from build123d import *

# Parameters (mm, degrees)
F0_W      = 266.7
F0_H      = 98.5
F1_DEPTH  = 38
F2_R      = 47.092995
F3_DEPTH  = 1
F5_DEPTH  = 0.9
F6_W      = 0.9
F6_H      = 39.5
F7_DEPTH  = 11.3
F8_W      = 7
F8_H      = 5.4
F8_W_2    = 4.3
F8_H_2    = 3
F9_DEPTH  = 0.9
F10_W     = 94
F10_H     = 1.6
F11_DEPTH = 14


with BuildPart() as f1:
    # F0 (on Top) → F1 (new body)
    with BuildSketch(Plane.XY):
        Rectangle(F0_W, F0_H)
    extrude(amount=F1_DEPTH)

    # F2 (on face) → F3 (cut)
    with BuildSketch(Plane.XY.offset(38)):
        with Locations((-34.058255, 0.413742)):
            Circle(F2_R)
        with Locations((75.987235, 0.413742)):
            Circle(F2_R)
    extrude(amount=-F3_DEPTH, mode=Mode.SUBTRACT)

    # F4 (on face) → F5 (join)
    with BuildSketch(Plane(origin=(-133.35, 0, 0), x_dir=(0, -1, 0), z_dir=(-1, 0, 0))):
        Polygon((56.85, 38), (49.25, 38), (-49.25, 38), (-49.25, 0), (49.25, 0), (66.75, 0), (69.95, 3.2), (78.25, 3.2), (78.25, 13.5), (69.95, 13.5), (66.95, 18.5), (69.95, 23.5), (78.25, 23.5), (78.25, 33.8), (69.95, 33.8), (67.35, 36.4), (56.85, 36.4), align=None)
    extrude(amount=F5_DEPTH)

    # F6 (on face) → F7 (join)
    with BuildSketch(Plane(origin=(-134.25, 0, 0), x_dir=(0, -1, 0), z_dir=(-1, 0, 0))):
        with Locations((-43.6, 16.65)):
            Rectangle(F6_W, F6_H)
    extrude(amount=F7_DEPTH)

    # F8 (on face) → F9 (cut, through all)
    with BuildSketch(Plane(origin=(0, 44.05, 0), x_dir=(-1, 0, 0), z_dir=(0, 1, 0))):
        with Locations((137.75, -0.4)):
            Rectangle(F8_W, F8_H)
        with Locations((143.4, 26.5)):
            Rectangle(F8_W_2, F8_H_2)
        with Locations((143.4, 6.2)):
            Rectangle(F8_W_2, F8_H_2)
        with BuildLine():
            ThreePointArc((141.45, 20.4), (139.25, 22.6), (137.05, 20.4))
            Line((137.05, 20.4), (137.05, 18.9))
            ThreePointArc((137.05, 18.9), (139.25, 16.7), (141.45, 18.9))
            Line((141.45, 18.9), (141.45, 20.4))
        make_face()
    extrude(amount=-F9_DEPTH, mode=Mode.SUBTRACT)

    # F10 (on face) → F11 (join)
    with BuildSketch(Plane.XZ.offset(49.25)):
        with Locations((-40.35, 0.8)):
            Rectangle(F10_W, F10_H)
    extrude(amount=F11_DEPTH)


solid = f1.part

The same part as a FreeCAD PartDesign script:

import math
import FreeCAD as App
import Part
import Sketcher
from FreeCAD import Vector
Q = App.Units.Quantity

doc = App.newDocument("Part")
params = doc.addObject("Spreadsheet::Sheet", "Params")
for row, (alias, value) in enumerate([
    ("sketch1_width", "266.7 mm"),
    ("sketch1_height", "98.5 mm"),
    ("pad1_length", "38 mm"),
    ("pocket1_length", "1 mm"),
    ("sketch3_width", "116 mm"),
    ("sketch3_height", "38 mm"),
    ("sketch3_width2", "106.1 mm"),
    ("sketch3_width3", "8.3 mm"),
    ("sketch3_width4", "10.5 mm"),
    ("pad2_length", "0.9 mm"),
    ("sketch4_width", "0.9 mm"),
    ("sketch4_height", "39.5 mm"),
    ("pad3_length", "11.3 mm"),
    ("sketch5_radius", "2.2 mm"),
    ("sketch5_width", "7 mm"),
    ("sketch5_height", "3 mm"),
    ("sketch5_width2", "4.3 mm"),
    ("sketch5_height2", "5.4 mm"),
    ("sketch6_width", "94 mm"),
    ("sketch6_height", "1.6 mm"),
    ("pad4_length", "14 mm"),
], start=1):
    params.set(f"A{row}", alias)
    params.set(f"B{row}", "=" + value)
    params.setAlias(f"B{row}", alias)

body = doc.addObject("PartDesign::Body", "Body")

sketch1 = body.newObject("Sketcher::SketchObject", "Sketch")
sketch1.AttachmentSupport = (doc.getObject("XY_Plane"), [""])
sketch1.MapMode = "FlatFace"
sketch1.addGeometry(Part.LineSegment(Vector(-133.35, 49.25, 0), Vector(-133.35, -49.25, 0)), False)
sketch1.addGeometry(Part.LineSegment(Vector(-133.35, -49.25, 0), Vector(133.35, -49.25, 0)), False)
sketch1.addGeometry(Part.LineSegment(Vector(133.35, -49.25, 0), Vector(133.35, 49.25, 0)), False)
sketch1.addGeometry(Part.LineSegment(Vector(133.35, 49.25, 0), Vector(-133.35, 49.25, 0)), False)
sketch1.addConstraint(Sketcher.Constraint("Coincident", 0, 2, 1, 1))
sketch1.addConstraint(Sketcher.Constraint("Coincident", 1, 2, 2, 1))
sketch1.addConstraint(Sketcher.Constraint("Coincident", 2, 2, 3, 1))
sketch1.addConstraint(Sketcher.Constraint("Coincident", 3, 2, 0, 1))
sketch1.addConstraint(Sketcher.Constraint("Vertical", 0))
sketch1.addConstraint(Sketcher.Constraint("Horizontal", 1))
sketch1.addConstraint(Sketcher.Constraint("Vertical", 2))
sketch1.addConstraint(Sketcher.Constraint("Horizontal", 3))
sketch1.addConstraint(Sketcher.Constraint("Symmetric", 0, 2, 2, 2, -1, 1))
sketch1.addConstraint(Sketcher.Constraint("DistanceX", 1, 1, 1, 2, 266.7))
sketch1.addConstraint(Sketcher.Constraint("DistanceY", 0, 2, 0, 1, 98.5))
sketch1.setExpression("Constraints[9]", "Params.sketch1_width")
sketch1.setExpression("Constraints[10]", "Params.sketch1_height")
pad1 = body.newObject("PartDesign::Pad", "Pad")
pad1.Profile = sketch1
pad1.setExpression("Length", "Params.pad1_length")

sketch2 = body.newObject("Sketcher::SketchObject", "Sketch001")
sketch2.AttachmentSupport = (doc.getObject("XY_Plane"), [""])
sketch2.MapMode = "FlatFace"
sketch2.AttachmentOffset = App.Placement(Vector(0, 0, 38), App.Rotation())
sketch2.addGeometry(Part.Circle(Vector(-34.058255, 0.413742, 0), Vector(0, 0, 1), 47.092995), False)
sketch2.addGeometry(Part.Circle(Vector(75.987235, 0.413742, 0), Vector(0, 0, 1), 47.092995), False)
sketch2.addConstraint(Sketcher.Constraint("Equal", 0, 1))
sketch2.addConstraint(Sketcher.Constraint("Horizontal", 0, 3, 1, 3))
sketch2.addConstraint(Sketcher.Constraint("Diameter", 0, 94.18599))
sketch2.addConstraint(Sketcher.Constraint("DistanceX", 0, 3, 1, 3, 110.04549))
sketch2.addConstraint(Sketcher.Constraint("DistanceX", 0, 3, -1, 1, 34.058255))
sketch2.addConstraint(Sketcher.Constraint("DistanceY", -1, 1, 0, 3, 0.413742))
pocket1 = body.newObject("PartDesign::Pocket", "Pocket")
pocket1.Profile = sketch2
pocket1.setExpression("Length", "Params.pocket1_length")

sketch3 = body.newObject("Sketcher::SketchObject", "Sketch002")
sketch3.AttachmentSupport = (doc.getObject("YZ_Plane"), [""])
sketch3.MapMode = "FlatFace"
sketch3.AttachmentOffset = App.Placement(Vector(0, 0, -133.35), App.Rotation())
sketch3.addGeometry(Part.LineSegment(Vector(-56.85, 38, 0), Vector(49.25, 38, 0)), False)
sketch3.addGeometry(Part.LineSegment(Vector(49.25, 38, 0), Vector(49.25, 0, 0)), False)
sketch3.addGeometry(Part.LineSegment(Vector(49.25, 0, 0), Vector(-66.75, 0, 0)), False)
sketch3.addGeometry(Part.LineSegment(Vector(-66.75, 0, 0), Vector(-69.95, 3.2, 0)), False)
sketch3.addGeometry(Part.LineSegment(Vector(-69.95, 3.2, 0), Vector(-78.25, 3.2, 0)), False)
sketch3.addGeometry(Part.LineSegment(Vector(-78.25, 3.2, 0), Vector(-78.25, 13.5, 0)), False)
sketch3.addGeometry(Part.LineSegment(Vector(-78.25, 13.5, 0), Vector(-69.95, 13.5, 0)), False)
sketch3.addGeometry(Part.LineSegment(Vector(-69.95, 13.5, 0), Vector(-66.95, 18.5, 0)), False)
sketch3.addGeometry(Part.LineSegment(Vector(-66.95, 18.5, 0), Vector(-69.95, 23.5, 0)), False)
sketch3.addGeometry(Part.LineSegment(Vector(-69.95, 23.5, 0), Vector(-78.25, 23.5, 0)), False)
sketch3.addGeometry(Part.LineSegment(Vector(-78.25, 23.5, 0), Vector(-78.25, 33.8, 0)), False)
sketch3.addGeometry(Part.LineSegment(Vector(-78.25, 33.8, 0), Vector(-69.95, 33.8, 0)), False)
sketch3.addGeometry(Part.LineSegment(Vector(-69.95, 33.8, 0), Vector(-67.35, 36.4, 0)), False)
sketch3.addGeometry(Part.LineSegment(Vector(-67.35, 36.4, 0), Vector(-56.85, 36.4, 0)), False)
sketch3.addGeometry(Part.LineSegment(Vector(-56.85, 36.4, 0), Vector(-56.85, 38, 0)), False)
sketch3.addConstraint(Sketcher.Constraint("Coincident", 0, 2, 1, 1))
sketch3.addConstraint(Sketcher.Constraint("Coincident", 1, 2, 2, 1))
sketch3.addConstraint(Sketcher.Constraint("Coincident", 2, 2, 3, 1))
sketch3.addConstraint(Sketcher.Constraint("Coincident", 3, 2, 4, 1))
sketch3.addConstraint(Sketcher.Constraint("Coincident", 4, 2, 5, 1))
sketch3.addConstraint(Sketcher.Constraint("Coincident", 5, 2, 6, 1))
sketch3.addConstraint(Sketcher.Constraint("Coincident", 6, 2, 7, 1))
sketch3.addConstraint(Sketcher.Constraint("Coincident", 7, 2, 8, 1))
sketch3.addConstraint(Sketcher.Constraint("Coincident", 8, 2, 9, 1))
sketch3.addConstraint(Sketcher.Constraint("Coincident", 9, 2, 10, 1))
sketch3.addConstraint(Sketcher.Constraint("Coincident", 10, 2, 11, 1))
sketch3.addConstraint(Sketcher.Constraint("Coincident", 11, 2, 12, 1))
sketch3.addConstraint(Sketcher.Constraint("Coincident", 12, 2, 13, 1))
sketch3.addConstraint(Sketcher.Constraint("Coincident", 13, 2, 14, 1))
sketch3.addConstraint(Sketcher.Constraint("Coincident", 14, 2, 0, 1))
sketch3.addConstraint(Sketcher.Constraint("Horizontal", 0))
sketch3.addConstraint(Sketcher.Constraint("Vertical", 1))
sketch3.addConstraint(Sketcher.Constraint("Horizontal", 2))
sketch3.addConstraint(Sketcher.Constraint("Horizontal", 4))
sketch3.addConstraint(Sketcher.Constraint("Vertical", 5))
sketch3.addConstraint(Sketcher.Constraint("Horizontal", 6))
sketch3.addConstraint(Sketcher.Constraint("Horizontal", 9))
sketch3.addConstraint(Sketcher.Constraint("Vertical", 10))
sketch3.addConstraint(Sketcher.Constraint("Horizontal", 11))
sketch3.addConstraint(Sketcher.Constraint("Horizontal", 13))
sketch3.addConstraint(Sketcher.Constraint("Vertical", 14))
sketch3.addConstraint(Sketcher.Constraint("PointOnObject", 1, 2, -1))
sketch3.addConstraint(Sketcher.Constraint("Perpendicular", 3, 12))
sketch3.addConstraint(Sketcher.Constraint("Vertical", 3, 2, 6, 2))
sketch3.addConstraint(Sketcher.Constraint("Vertical", 6, 2, 8, 2))
sketch3.addConstraint(Sketcher.Constraint("Vertical", 5, 2, 9, 2))
sketch3.addConstraint(Sketcher.Constraint("Vertical", 8, 2, 11, 2))
sketch3.addConstraint(Sketcher.Constraint("Equal", 5, 10))
sketch3.addConstraint(Sketcher.Constraint("Equal", 7, 8))
sketch3.addConstraint(Sketcher.Constraint("DistanceX", 2, 2, 2, 1, 116.0))
sketch3.addConstraint(Sketcher.Constraint("DistanceY", 1, 2, 1, 1, 38.0))
sketch3.addConstraint(Sketcher.Constraint("Angle", 3, Q("135 deg")))
sketch3.addConstraint(Sketcher.Constraint("DistanceX", 0, 1, 0, 2, 106.1))
sketch3.addConstraint(Sketcher.Constraint("DistanceX", 4, 2, 4, 1, 8.3))
sketch3.addConstraint(Sketcher.Constraint("DistanceX", 13, 1, 13, 2, 10.5))
sketch3.addConstraint(Sketcher.Constraint("DistanceY", 5, 1, 5, 2, 10.3))
sketch3.addConstraint(Sketcher.Constraint("DistanceY", 14, 1, 14, 2, 1.6))
sketch3.addConstraint(Sketcher.Constraint("DistanceX", 6, 2, 7, 2, 3.0))
sketch3.addConstraint(Sketcher.Constraint("DistanceY", 6, 2, 7, 2, 5.0))
sketch3.addConstraint(Sketcher.Constraint("DistanceX", -1, 1, 0, 2, 49.25))
sketch3.setExpression("Constraints[34]", "Params.sketch3_width")
sketch3.setExpression("Constraints[35]", "Params.sketch3_height")
sketch3.setExpression("Constraints[37]", "Params.sketch3_width2")
sketch3.setExpression("Constraints[38]", "Params.sketch3_width3")
sketch3.setExpression("Constraints[39]", "Params.sketch3_width4")
pad2 = body.newObject("PartDesign::Pad", "Pad001")
pad2.Profile = sketch3
pad2.setExpression("Length", "Params.pad2_length")
pad2.Reversed = True

sketch4 = body.newObject("Sketcher::SketchObject", "Sketch003")
sketch4.AttachmentSupport = (doc.getObject("YZ_Plane"), [""])
sketch4.MapMode = "FlatFace"
sketch4.AttachmentOffset = App.Placement(Vector(0, 0, -134.25), App.Rotation())
sketch4.addGeometry(Part.LineSegment(Vector(44.05, 36.4, 0), Vector(44.05, -3.1, 0)), False)
sketch4.addGeometry(Part.LineSegment(Vector(44.05, -3.1, 0), Vector(43.15, -3.1, 0)), False)
sketch4.addGeometry(Part.LineSegment(Vector(43.15, -3.1, 0), Vector(43.15, 36.4, 0)), False)
sketch4.addGeometry(Part.LineSegment(Vector(43.15, 36.4, 0), Vector(44.05, 36.4, 0)), False)
sketch4.addConstraint(Sketcher.Constraint("Coincident", 0, 2, 1, 1))
sketch4.addConstraint(Sketcher.Constraint("Coincident", 1, 2, 2, 1))
sketch4.addConstraint(Sketcher.Constraint("Coincident", 2, 2, 3, 1))
sketch4.addConstraint(Sketcher.Constraint("Coincident", 3, 2, 0, 1))
sketch4.addConstraint(Sketcher.Constraint("Vertical", 0))
sketch4.addConstraint(Sketcher.Constraint("Horizontal", 1))
sketch4.addConstraint(Sketcher.Constraint("Vertical", 2))
sketch4.addConstraint(Sketcher.Constraint("Horizontal", 3))
sketch4.addConstraint(Sketcher.Constraint("DistanceX", 1, 2, 1, 1, 0.9))
sketch4.addConstraint(Sketcher.Constraint("DistanceY", 0, 2, 0, 1, 39.5))
sketch4.addConstraint(Sketcher.Constraint("DistanceY", 0, 2, -1, 1, 3.1))
sketch4.addConstraint(Sketcher.Constraint("DistanceX", -1, 1, 0, 2, 44.05))
sketch4.setExpression("Constraints[8]", "Params.sketch4_width")
sketch4.setExpression("Constraints[9]", "Params.sketch4_height")
pad3 = body.newObject("PartDesign::Pad", "Pad002")
pad3.Profile = sketch4
pad3.setExpression("Length", "Params.pad3_length")
pad3.Reversed = True

sketch5 = body.newObject("Sketcher::SketchObject", "Sketch004")
sketch5.AttachmentSupport = (doc.getObject("XZ_Plane"), [""])
sketch5.MapMode = "FlatFace"
sketch5.AttachmentOffset = App.Placement(Vector(0, 0, -44.05), App.Rotation())
sketch5.addGeometry(Part.LineSegment(Vector(-134.25, 2.3, 0), Vector(-134.25, -3.1, 0)), False)
sketch5.addGeometry(Part.LineSegment(Vector(-134.25, -3.1, 0), Vector(-141.25, -3.1, 0)), False)
sketch5.addGeometry(Part.LineSegment(Vector(-141.25, -3.1, 0), Vector(-141.25, 2.3, 0)), False)
sketch5.addGeometry(Part.LineSegment(Vector(-141.25, 2.3, 0), Vector(-134.25, 2.3, 0)), False)
sketch5.addGeometry(Part.LineSegment(Vector(-141.25, 28, 0), Vector(-141.25, 25, 0)), False)
sketch5.addGeometry(Part.LineSegment(Vector(-141.25, 25, 0), Vector(-145.55, 25, 0)), False)
sketch5.addGeometry(Part.LineSegment(Vector(-145.55, 25, 0), Vector(-145.55, 28, 0)), False)
sketch5.addGeometry(Part.LineSegment(Vector(-145.55, 28, 0), Vector(-141.25, 28, 0)), False)
sketch5.addGeometry(Part.LineSegment(Vector(-141.25, 7.7, 0), Vector(-141.25, 4.7, 0)), False)
sketch5.addGeometry(Part.LineSegment(Vector(-141.25, 4.7, 0), Vector(-145.55, 4.7, 0)), False)
sketch5.addGeometry(Part.LineSegment(Vector(-145.55, 4.7, 0), Vector(-145.55, 7.7, 0)), False)
sketch5.addGeometry(Part.LineSegment(Vector(-145.55, 7.7, 0), Vector(-141.25, 7.7, 0)), False)
sketch5.addGeometry(Part.ArcOfCircle(Part.Circle(Vector(-139.25, 20.4, 0), Vector(0, 0, 1), 2.2), math.radians(0), math.radians(180)), False)
sketch5.addGeometry(Part.LineSegment(Vector(-137.05, 20.4, 0), Vector(-137.05, 18.9, 0)), False)
sketch5.addGeometry(Part.ArcOfCircle(Part.Circle(Vector(-139.25, 18.9, 0), Vector(0, 0, 1), 2.2), math.radians(180), math.radians(360)), False)
sketch5.addGeometry(Part.LineSegment(Vector(-141.45, 18.9, 0), Vector(-141.45, 20.4, 0)), False)
sketch5.addConstraint(Sketcher.Constraint("Coincident", 0, 2, 1, 1))
sketch5.addConstraint(Sketcher.Constraint("Coincident", 1, 2, 2, 1))
sketch5.addConstraint(Sketcher.Constraint("Coincident", 2, 2, 3, 1))
sketch5.addConstraint(Sketcher.Constraint("Coincident", 3, 2, 0, 1))
sketch5.addConstraint(Sketcher.Constraint("Coincident", 4, 2, 5, 1))
sketch5.addConstraint(Sketcher.Constraint("Coincident", 5, 2, 6, 1))
sketch5.addConstraint(Sketcher.Constraint("Coincident", 6, 2, 7, 1))
sketch5.addConstraint(Sketcher.Constraint("Coincident", 7, 2, 4, 1))
sketch5.addConstraint(Sketcher.Constraint("Coincident", 8, 2, 9, 1))
sketch5.addConstraint(Sketcher.Constraint("Coincident", 9, 2, 10, 1))
sketch5.addConstraint(Sketcher.Constraint("Coincident", 10, 2, 11, 1))
sketch5.addConstraint(Sketcher.Constraint("Coincident", 11, 2, 8, 1))
sketch5.addConstraint(Sketcher.Constraint("Tangent", 12, 1, 13, 1))
sketch5.addConstraint(Sketcher.Constraint("Tangent", 13, 2, 14, 2))
sketch5.addConstraint(Sketcher.Constraint("Tangent", 14, 1, 15, 1))
sketch5.addConstraint(Sketcher.Constraint("Tangent", 15, 2, 12, 2))
sketch5.addConstraint(Sketcher.Constraint("Vertical", 0))
sketch5.addConstraint(Sketcher.Constraint("Horizontal", 1))
sketch5.addConstraint(Sketcher.Constraint("Vertical", 2))
sketch5.addConstraint(Sketcher.Constraint("Horizontal", 3))
sketch5.addConstraint(Sketcher.Constraint("Vertical", 4))
sketch5.addConstraint(Sketcher.Constraint("Horizontal", 5))
sketch5.addConstraint(Sketcher.Constraint("Vertical", 6))
sketch5.addConstraint(Sketcher.Constraint("Horizontal", 7))
sketch5.addConstraint(Sketcher.Constraint("Vertical", 8))
sketch5.addConstraint(Sketcher.Constraint("Horizontal", 9))
sketch5.addConstraint(Sketcher.Constraint("Vertical", 10))
sketch5.addConstraint(Sketcher.Constraint("Horizontal", 11))
sketch5.addConstraint(Sketcher.Constraint("Vertical", 13))
sketch5.addConstraint(Sketcher.Constraint("Vertical", 15))
sketch5.addConstraint(Sketcher.Constraint("Vertical", 2, 2, 4, 2))
sketch5.addConstraint(Sketcher.Constraint("Vertical", 7, 2, 8, 2))
sketch5.addConstraint(Sketcher.Constraint("Vertical", 6, 2, 9, 2))
sketch5.addConstraint(Sketcher.Constraint("Equal", 6, 8))
sketch5.addConstraint(Sketcher.Constraint("Radius", 12, 2.2))
sketch5.addConstraint(Sketcher.Constraint("DistanceX", 1, 2, 1, 1, 7.0))
sketch5.addConstraint(Sketcher.Constraint("DistanceY", 4, 2, 4, 1, 3.0))
sketch5.addConstraint(Sketcher.Constraint("DistanceX", 5, 2, 5, 1, 4.3))
sketch5.addConstraint(Sketcher.Constraint("DistanceY", 0, 2, 0, 1, 5.4))
sketch5.addConstraint(Sketcher.Constraint("DistanceY", 13, 2, 13, 1, 1.5))
sketch5.addConstraint(Sketcher.Constraint("DistanceY", -1, 1, 4, 2, 25.0))
sketch5.addConstraint(Sketcher.Constraint("DistanceX", 14, 3, 0, 2, 5.0))
sketch5.addConstraint(Sketcher.Constraint("DistanceY", 0, 2, 14, 3, 22.0))
sketch5.addConstraint(Sketcher.Constraint("DistanceY", -1, 1, 12, 3, 20.4))
sketch5.addConstraint(Sketcher.Constraint("DistanceY", -1, 1, 8, 2, 4.7))
sketch5.addConstraint(Sketcher.Constraint("DistanceX", 12, 3, -1, 1, 139.25))
sketch5.setExpression("Constraints[34]", "Params.sketch5_radius")
sketch5.setExpression("Constraints[35]", "Params.sketch5_width")
sketch5.setExpression("Constraints[36]", "Params.sketch5_height")
sketch5.setExpression("Constraints[37]", "Params.sketch5_width2")
sketch5.setExpression("Constraints[38]", "Params.sketch5_height2")
pocket2 = body.newObject("PartDesign::Pocket", "Pocket001")
pocket2.Profile = sketch5
pocket2.Type = "ThroughAll"
pocket2.Reversed = True

sketch6 = body.newObject("Sketcher::SketchObject", "Sketch005")
sketch6.AttachmentSupport = (doc.getObject("XZ_Plane"), [""])
sketch6.MapMode = "FlatFace"
sketch6.AttachmentOffset = App.Placement(Vector(0, 0, 49.25), App.Rotation())
sketch6.addGeometry(Part.LineSegment(Vector(-87.35, 1.6, 0), Vector(-87.35, 0, 0)), False)
sketch6.addGeometry(Part.LineSegment(Vector(-87.35, 0, 0), Vector(6.65, 0, 0)), False)
sketch6.addGeometry(Part.LineSegment(Vector(6.65, 0, 0), Vector(6.65, 1.6, 0)), False)
sketch6.addGeometry(Part.LineSegment(Vector(6.65, 1.6, 0), Vector(-87.35, 1.6, 0)), False)
sketch6.addConstraint(Sketcher.Constraint("Coincident", 0, 2, 1, 1))
sketch6.addConstraint(Sketcher.Constraint("Coincident", 1, 2, 2, 1))
sketch6.addConstraint(Sketcher.Constraint("Coincident", 2, 2, 3, 1))
sketch6.addConstraint(Sketcher.Constraint("Coincident", 3, 2, 0, 1))
sketch6.addConstraint(Sketcher.Constraint("Vertical", 0))
sketch6.addConstraint(Sketcher.Constraint("Horizontal", 1))
sketch6.addConstraint(Sketcher.Constraint("Vertical", 2))
sketch6.addConstraint(Sketcher.Constraint("Horizontal", 3))
sketch6.addConstraint(Sketcher.Constraint("PointOnObject", 0, 2, -1))
sketch6.addConstraint(Sketcher.Constraint("DistanceX", 1, 1, 1, 2, 94.0))
sketch6.addConstraint(Sketcher.Constraint("DistanceY", 0, 2, 0, 1, 1.6))
sketch6.addConstraint(Sketcher.Constraint("DistanceX", 0, 2, -1, 1, 87.35))
sketch6.setExpression("Constraints[9]", "Params.sketch6_width")
sketch6.setExpression("Constraints[10]", "Params.sketch6_height")
pad4 = body.newObject("PartDesign::Pad", "Pad003")
pad4.Profile = sketch6
pad4.setExpression("Length", "Params.pad4_length")

doc.recompute()
